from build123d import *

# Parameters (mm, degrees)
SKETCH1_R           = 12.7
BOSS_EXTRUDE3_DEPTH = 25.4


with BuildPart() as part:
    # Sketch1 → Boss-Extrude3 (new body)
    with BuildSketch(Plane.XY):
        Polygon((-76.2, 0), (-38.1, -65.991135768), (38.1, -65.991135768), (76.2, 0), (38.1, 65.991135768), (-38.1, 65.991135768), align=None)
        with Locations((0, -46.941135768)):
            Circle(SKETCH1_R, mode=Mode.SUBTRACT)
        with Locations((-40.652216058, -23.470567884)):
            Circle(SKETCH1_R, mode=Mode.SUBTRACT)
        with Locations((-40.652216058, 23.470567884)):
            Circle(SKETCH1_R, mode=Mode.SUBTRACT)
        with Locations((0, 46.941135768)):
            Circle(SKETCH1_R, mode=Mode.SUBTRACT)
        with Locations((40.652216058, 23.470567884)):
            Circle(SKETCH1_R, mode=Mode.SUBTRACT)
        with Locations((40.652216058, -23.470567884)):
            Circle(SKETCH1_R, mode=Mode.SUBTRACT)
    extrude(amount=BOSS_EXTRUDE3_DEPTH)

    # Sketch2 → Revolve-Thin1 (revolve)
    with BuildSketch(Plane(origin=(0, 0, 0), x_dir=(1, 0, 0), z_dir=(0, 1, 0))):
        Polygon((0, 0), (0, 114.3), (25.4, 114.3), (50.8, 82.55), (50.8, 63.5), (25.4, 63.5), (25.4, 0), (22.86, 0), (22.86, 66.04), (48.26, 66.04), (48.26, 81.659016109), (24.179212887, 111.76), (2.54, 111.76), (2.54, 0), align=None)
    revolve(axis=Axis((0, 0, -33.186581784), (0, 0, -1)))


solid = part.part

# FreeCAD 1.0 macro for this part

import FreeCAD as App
import Part
import Sketcher

V = App.Vector
Q = App.Units.Quantity


def add_polygon(sketch, points):
    """Adds a closed chain of lines whose ends are joined by coincident constraints."""
    first, n = sketch.GeometryCount, len(points)
    for a, b in zip(points, points[1:] + points[:1]):
        sketch.addGeometry(Part.LineSegment(App.Vector(*a, 0), App.Vector(*b, 0)), False)
    for i in range(n):
        sketch.addConstraint(Sketcher.Constraint("Coincident", first + i, 2, first + (i + 1) % n, 1))

doc = App.newDocument("Part")
body = doc.addObject("PartDesign::Body", "Body")

# Sketch on XY plane
sketch1 = doc.addObject("Sketcher::SketchObject", "Sketch")
body.addObject(sketch1)
sketch1.AttachmentSupport = (doc.XY_Plane, [""])
sketch1.MapMode = "FlatFace"
add_polygon(sketch1, [(-76, 0), (-38, -66), (38, -66), (76, 0), (38, 66), (-38, 66)])  # lines 0-5
sketch1.addGeometry(Part.Circle(V(-41, -23, 0), V(0, 0, 1), 13), False)  # 6
sketch1.addGeometry(Part.Circle(V(0, -47, 0), V(0, 0, 1), 13), False)  # 7
sketch1.addGeometry(Part.Circle(V(41, -23, 0), V(0, 0, 1), 13), False)  # 8
sketch1.addGeometry(Part.Circle(V(-41, 23, 0), V(0, 0, 1), 13), False)  # 9
sketch1.addGeometry(Part.Circle(V(41, 23, 0), V(0, 0, 1), 13), False)  # 10
sketch1.addGeometry(Part.Circle(V(0, 47, 0), V(0, 0, 1), 13), False)  # 11
sketch1.addConstraint(Sketcher.Constraint("Horizontal", 1))
sketch1.addConstraint(Sketcher.Constraint("Horizontal", 4))
sketch1.addConstraint(Sketcher.Constraint("Equal", 6, 7))
sketch1.addConstraint(Sketcher.Constraint("Equal", 7, 8))
sketch1.addConstraint(Sketcher.Constraint("Equal", 8, 9))
sketch1.addConstraint(Sketcher.Constraint("Equal", 9, 10))
sketch1.addConstraint(Sketcher.Constraint("Equal", 10, 11))
sketch1.addConstraint(Sketcher.Constraint("Symmetric", 8, 3, 9, 3, -1, 1))
sketch1.addConstraint(Sketcher.Constraint("Symmetric", 6, 3, 10, 3, -1, 1))
sketch1.addConstraint(Sketcher.Constraint("Symmetric", 7, 3, 11, 3, -1, 1))
sketch1.addConstraint(Sketcher.Constraint("Symmetric", 0, 2, 3, 2, -1, 1))
sketch1.addConstraint(Sketcher.Constraint("Symmetric", 2, 2, 5, 2, -1, 1))
sketch1.addConstraint(Sketcher.Constraint("Symmetric", 6, 3, 8, 3, -2))
sketch1.addConstraint(Sketcher.Constraint("PointOnObject", 7, 3, -2))
sketch1.addConstraint(Sketcher.Constraint("PointOnObject", 2, 2, -1))
sketch1.addConstraint(Sketcher.Constraint("Parallel", 2, 5))
sketch1.addConstraint(Sketcher.Constraint("Vertical", 1, 2, 3, 2))
sketch1.addConstraint(Sketcher.Constraint("Diameter", 6, Q("1 in")))
sketch1.addConstraint(Sketcher.Constraint("DistanceX", 1, 1, 1, 2, Q("3 in")))
sketch1.addConstraint(Sketcher.Constraint("Distance", 0, Q("3 in")))
sketch1.addConstraint(Sketcher.Constraint("DistanceX", -1, 1, 2, 2, Q("3 in")))
sketch1.addConstraint(Sketcher.Constraint("DistanceY", 0, 2, 7, 3, Q("0.75 in")))
sketch1.addConstraint(Sketcher.Constraint("DistanceX", 6, 3, -1, 1, 40.652216))
sketch1.addConstraint(Sketcher.Constraint("DistanceY", 6, 3, -1, 1, 23.470568))
pad1 = doc.addObject("PartDesign::Pad", "Pad")
body.addObject(pad1)
pad1.Profile = sketch1
pad1.Length = Q("1 in")

# Sketch on XZ plane
sketch2 = doc.addObject("Sketcher::SketchObject", "Sketch001")
body.addObject(sketch2)
sketch2.AttachmentSupport = (doc.XZ_Plane, [""])
sketch2.MapMode = "FlatFace"
add_polygon(sketch2, [(0, -114.3), (0, 0), (2.5, 0), (2.5, -111.8), (24.2, -111.8), (48.3, -81.7), (48.3, -66), (22.9, -66), (22.9, 0), (25.4, 0), (25.4, -63.5), (50.8, -63.5), (50.8, -82.5), (25.4, -114.3)])  # lines 0-13
sketch2.addConstraint(Sketcher.Constraint("Vertical", 0))
sketch2.addConstraint(Sketcher.Constraint("Horizontal", 1))
sketch2.addConstraint(Sketcher.Constraint("Vertical", 2))
sketch2.addConstraint(Sketcher.Constraint("Horizontal", 3))
sketch2.addConstraint(Sketcher.Constraint("Vertical", 5))
sketch2.addConstraint(Sketcher.Constraint("Horizontal", 6))
sketch2.addConstraint(Sketcher.Constraint("Vertical", 7))
sketch2.addConstraint(Sketcher.Constraint("Horizontal", 8))
sketch2.addConstraint(Sketcher.Constraint("Vertical", 9))
sketch2.addConstraint(Sketcher.Constraint("Horizontal", 10))
sketch2.addConstraint(Sketcher.Constraint("Vertical", 11))
sketch2.addConstraint(Sketcher.Constraint("Horizontal", 13))
sketch2.addConstraint(Sketcher.Constraint("Coincident", 0, 2, -1, 1))
sketch2.addConstraint(Sketcher.Constraint("PointOnObject", 7, 2, -1))
sketch2.addConstraint(Sketcher.Constraint("Parallel", 4, 12))
sketch2.addConstraint(Sketcher.Constraint("Vertical", 9, 2, 12, 2))
sketch2.addConstraint(Sketcher.Constraint("Equal", 1, 8))
sketch2.addConstraint(Sketcher.Constraint("Equal", 6, 10))
sketch2.addConstraint(Sketcher.Constraint("Equal", 10, 13))
sketch2.addConstraint(Sketcher.Constraint("DistanceX", 6, 2, 6, 1, Q("1 in")))
sketch2.addConstraint(Sketcher.Constraint("DistanceX", 1, 1, 1, 2, Q("0.1 in")))
sketch2.addConstraint(Sketcher.Constraint("DistanceY", 0, 1, 0, 2, Q("4.5 in")))
sketch2.addConstraint(Sketcher.Constraint("DistanceY", 2, 2, 2, 1, Q("4.4 in")))
sketch2.addConstraint(Sketcher.Constraint("DistanceY", 7, 1, 7, 2, Q("2.6 in")))
sketch2.addConstraint(Sketcher.Constraint("DistanceY", 9, 2, 9, 1, Q("2.5 in")))
sketch2.addConstraint(Sketcher.Constraint("DistanceY", 11, 2, 11, 1, Q("0.75 in")))
sketch2.addConstraint(Sketcher.Constraint("DistanceX", 3, 1, 3, 2, 21.639213))
revolution = doc.addObject("PartDesign::Revolution", "Revolution")
body.addObject(revolution)
revolution.Profile = sketch2
revolution.ReferenceAxis = (sketch2, ["V_Axis"])
revolution.Angle = 360

doc.recompute()
